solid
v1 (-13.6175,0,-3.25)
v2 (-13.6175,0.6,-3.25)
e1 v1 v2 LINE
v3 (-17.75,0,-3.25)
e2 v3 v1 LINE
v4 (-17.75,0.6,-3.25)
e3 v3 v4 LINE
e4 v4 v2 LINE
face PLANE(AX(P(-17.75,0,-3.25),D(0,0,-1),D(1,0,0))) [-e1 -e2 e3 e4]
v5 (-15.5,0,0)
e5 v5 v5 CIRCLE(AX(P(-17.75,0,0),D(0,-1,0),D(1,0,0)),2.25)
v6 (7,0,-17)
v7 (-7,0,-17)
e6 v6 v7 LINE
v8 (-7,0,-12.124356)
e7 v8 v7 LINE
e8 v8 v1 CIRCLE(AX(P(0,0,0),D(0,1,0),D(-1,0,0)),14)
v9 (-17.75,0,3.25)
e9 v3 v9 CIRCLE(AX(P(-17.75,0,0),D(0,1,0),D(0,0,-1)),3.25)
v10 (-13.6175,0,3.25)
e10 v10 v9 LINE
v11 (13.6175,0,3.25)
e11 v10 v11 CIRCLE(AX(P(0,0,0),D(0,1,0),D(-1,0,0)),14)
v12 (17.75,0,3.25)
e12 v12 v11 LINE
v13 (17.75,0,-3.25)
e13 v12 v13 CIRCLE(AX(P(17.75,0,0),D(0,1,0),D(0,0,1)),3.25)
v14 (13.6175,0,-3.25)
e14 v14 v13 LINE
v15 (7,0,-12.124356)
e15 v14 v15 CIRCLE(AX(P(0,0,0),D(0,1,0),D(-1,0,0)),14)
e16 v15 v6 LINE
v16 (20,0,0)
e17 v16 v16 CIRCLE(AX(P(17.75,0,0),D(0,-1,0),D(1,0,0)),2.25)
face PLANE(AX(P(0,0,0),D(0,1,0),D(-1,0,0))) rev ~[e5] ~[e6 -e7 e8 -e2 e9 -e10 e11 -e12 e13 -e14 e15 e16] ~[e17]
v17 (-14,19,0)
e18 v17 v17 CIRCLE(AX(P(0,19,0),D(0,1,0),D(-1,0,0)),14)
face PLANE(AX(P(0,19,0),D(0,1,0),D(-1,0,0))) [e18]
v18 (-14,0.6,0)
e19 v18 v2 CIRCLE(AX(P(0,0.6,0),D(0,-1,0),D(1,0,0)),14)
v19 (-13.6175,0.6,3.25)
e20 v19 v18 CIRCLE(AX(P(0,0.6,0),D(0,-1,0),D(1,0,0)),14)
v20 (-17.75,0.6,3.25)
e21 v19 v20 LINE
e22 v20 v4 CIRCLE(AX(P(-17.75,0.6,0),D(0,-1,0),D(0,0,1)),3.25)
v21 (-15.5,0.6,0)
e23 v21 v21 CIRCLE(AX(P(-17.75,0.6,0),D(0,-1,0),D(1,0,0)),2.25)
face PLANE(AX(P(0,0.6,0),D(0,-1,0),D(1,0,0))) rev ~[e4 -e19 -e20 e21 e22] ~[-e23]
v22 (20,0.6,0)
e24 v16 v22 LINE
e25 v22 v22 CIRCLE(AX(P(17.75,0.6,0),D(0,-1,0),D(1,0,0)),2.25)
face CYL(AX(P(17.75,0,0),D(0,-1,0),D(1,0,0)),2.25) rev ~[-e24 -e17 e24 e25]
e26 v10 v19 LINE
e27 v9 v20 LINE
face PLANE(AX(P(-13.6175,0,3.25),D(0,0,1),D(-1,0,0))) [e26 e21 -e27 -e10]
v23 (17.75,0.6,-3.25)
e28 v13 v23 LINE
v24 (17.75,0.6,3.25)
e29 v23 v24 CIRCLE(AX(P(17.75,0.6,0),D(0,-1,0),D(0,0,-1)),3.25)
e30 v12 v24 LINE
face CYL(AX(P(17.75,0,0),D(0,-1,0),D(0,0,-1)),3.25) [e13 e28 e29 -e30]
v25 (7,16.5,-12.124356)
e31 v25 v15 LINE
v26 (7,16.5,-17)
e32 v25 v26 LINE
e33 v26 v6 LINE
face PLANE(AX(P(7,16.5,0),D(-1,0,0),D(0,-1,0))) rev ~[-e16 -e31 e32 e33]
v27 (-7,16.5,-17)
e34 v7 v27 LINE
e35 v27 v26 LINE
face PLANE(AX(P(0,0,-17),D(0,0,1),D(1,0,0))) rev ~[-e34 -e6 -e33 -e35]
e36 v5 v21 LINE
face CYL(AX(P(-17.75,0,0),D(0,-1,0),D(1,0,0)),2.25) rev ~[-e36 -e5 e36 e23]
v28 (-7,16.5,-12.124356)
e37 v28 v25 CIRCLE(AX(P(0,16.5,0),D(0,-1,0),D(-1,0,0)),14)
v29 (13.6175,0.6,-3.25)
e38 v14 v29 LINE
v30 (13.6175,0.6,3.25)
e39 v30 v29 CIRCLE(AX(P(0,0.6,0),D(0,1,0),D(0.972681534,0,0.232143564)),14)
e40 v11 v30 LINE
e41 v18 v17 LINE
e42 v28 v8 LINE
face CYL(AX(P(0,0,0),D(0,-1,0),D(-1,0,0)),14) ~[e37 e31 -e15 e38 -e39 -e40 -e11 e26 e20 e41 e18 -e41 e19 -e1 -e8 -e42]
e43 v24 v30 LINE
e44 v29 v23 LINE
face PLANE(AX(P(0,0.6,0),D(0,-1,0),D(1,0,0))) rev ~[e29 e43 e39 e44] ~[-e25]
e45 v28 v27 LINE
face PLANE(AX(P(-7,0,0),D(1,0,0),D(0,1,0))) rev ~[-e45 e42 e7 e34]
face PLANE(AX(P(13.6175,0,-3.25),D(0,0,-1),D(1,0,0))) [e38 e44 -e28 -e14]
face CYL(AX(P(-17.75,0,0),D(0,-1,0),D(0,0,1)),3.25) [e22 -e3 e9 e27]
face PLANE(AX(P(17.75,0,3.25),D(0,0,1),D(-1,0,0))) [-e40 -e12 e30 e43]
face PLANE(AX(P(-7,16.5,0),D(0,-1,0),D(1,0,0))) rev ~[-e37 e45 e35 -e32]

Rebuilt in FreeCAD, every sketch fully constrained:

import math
import FreeCAD as App
import Part
import Sketcher
from FreeCAD import Vector
Q = App.Units.Quantity


def add_polygon(sketch, points):
    """Adds a closed chain of lines whose ends are joined by coincident constraints."""
    first, n = sketch.GeometryCount, len(points)
    for a, b in zip(points, points[1:] + points[:1]):
        sketch.addGeometry(Part.LineSegment(App.Vector(*a, 0), App.Vector(*b, 0)), False)
    for i in range(n):
        sketch.addConstraint(Sketcher.Constraint("Coincident", first + i, 2, first + (i + 1) % n, 1))

doc = App.newDocument("Part")
body = doc.addObject("PartDesign::Body", "Body")

sketch1 = body.newObject("Sketcher::SketchObject", "Sketch")
sketch1.AttachmentSupport = (doc.getObject("XZ_Plane"), [""])
sketch1.MapMode = "FlatFace"
sketch1.addGeometry(Part.Circle(Vector(0, 0, 0), Vector(0, 0, 1), 14), False)
sketch1.addConstraint([
    Sketcher.Constraint("Coincident", 0, 3, -1, 1),
    Sketcher.Constraint("Diameter", 0, Q("28 mm")),
])
pad1 = body.newObject("PartDesign::Pad", "Pad")
pad1.Profile = sketch1
pad1.Length = 19
pad1.Reversed = True

sketch2 = body.newObject("Sketcher::SketchObject", "Sketch001")
sketch2.AttachmentSupport = (doc.getObject("XZ_Plane"), [""])
sketch2.MapMode = "FlatFace"
sketch2.addGeometry([
    Part.ArcOfCircle(Part.Circle(Vector(-17.8, 0, 0), Vector(0, 0, 1), 3.2), math.radians(90), math.radians(270)),
    Part.LineSegment(Vector(-17.8, -3.2, 0), Vector(-13.6, -3.2, 0)),
    Part.ArcOfCircle(Part.Circle(Vector(0, 0, 0), Vector(0, 0, 1), 14), math.radians(167), math.radians(193)),
    Part.LineSegment(Vector(-13.6, 3.2, 0), Vector(-17.8, 3.2, 0)),
    Part.Circle(Vector(-17.8, 0, 0), Vector(0, 0, 1), 2.2),
    Part.ArcOfCircle(Part.Circle(Vector(0, 0, 0), Vector(0, 0, 1), 14), math.radians(-13), math.radians(13)),
    Part.LineSegment(Vector(13.6, -3.2, 0), Vector(17.8, -3.2, 0)),
    Part.ArcOfCircle(Part.Circle(Vector(17.8, 0, 0), Vector(0, 0, 1), 3.2), math.radians(-90), math.radians(90)),
    Part.LineSegment(Vector(17.8, 3.2, 0), Vector(13.6, 3.2, 0)),
    Part.Circle(Vector(17.8, 0, 0), Vector(0, 0, 1), 2.2),
], False)
sketch2.addConstraint([
    Sketcher.Constraint("Tangent", 0, 2, 1, 1),
    Sketcher.Constraint("Coincident", 1, 2, 2, 2),
    Sketcher.Constraint("Coincident", 2, 1, 3, 1),
    Sketcher.Constraint("Tangent", 3, 2, 0, 1),
    Sketcher.Constraint("Coincident", 5, 1, 6, 1),
    Sketcher.Constraint("Tangent", 6, 2, 7, 1),
    Sketcher.Constraint("Tangent", 7, 2, 8, 1),
    Sketcher.Constraint("Coincident", 8, 2, 5, 2),
    Sketcher.Constraint("Horizontal", 1),
    Sketcher.Constraint("Horizontal", 3),
    Sketcher.Constraint("Horizontal", 6),
    Sketcher.Constraint("Horizontal", 8),
    Sketcher.Constraint("Coincident", 2, 3, -1, 1),
    Sketcher.Constraint("Coincident", 5, 3, -1, 1),
    Sketcher.Constraint("Coincident", 4, 3, 0, 3),
    Sketcher.Constraint("Coincident", 9, 3, 7, 3),
    Sketcher.Constraint("Equal", 2, 5),
    Sketcher.Constraint("Equal", 0, 7),
    Sketcher.Constraint("Equal", 4, 9),
    Sketcher.Constraint("Symmetric", 0, 3, 7, 3, -1, 1),
    Sketcher.Constraint("PointOnObject", 0, 3, -1),
    Sketcher.Constraint("Diameter", 4, Q("4.5 mm")),
    Sketcher.Constraint("Radius", 0, Q("3.25 mm")),
    Sketcher.Constraint("Radius", 2, Q("14 mm")),
    Sketcher.Constraint("DistanceX", 0, 3, 7, 3, Q("35.5 mm")),
])
pad2 = body.newObject("PartDesign::Pad", "Pad001")
pad2.Profile = sketch2
pad2.Length = 0.6
pad2.Reversed = True

sketch3 = body.newObject("Sketcher::SketchObject", "Sketch002")
sketch3.AttachmentSupport = (doc.getObject("XY_Plane"), [""])
sketch3.MapMode = "FlatFace"
add_polygon(sketch3, [(-7, 0), (7, 0), (7, 16), (-7, 16)])
sketch3.addConstraint([
    Sketcher.Constraint("Horizontal", 0),
    Sketcher.Constraint("Vertical", 1),
    Sketcher.Constraint("Horizontal", 2),
    Sketcher.Constraint("Vertical", 3),
    Sketcher.Constraint("Symmetric", 0, 2, 3, 2, -1, 1),
    Sketcher.Constraint("DistanceX", 0, 1, 0, 2, Q("14 mm")),
    Sketcher.Constraint("DistanceY", 1, 1, 1, 2, Q("16.5 mm")),
])
pad3 = body.newObject("PartDesign::Pad", "Pad002")
pad3.Profile = sketch3
pad3.Length = 17
pad3.Reversed = True

doc.recompute()
